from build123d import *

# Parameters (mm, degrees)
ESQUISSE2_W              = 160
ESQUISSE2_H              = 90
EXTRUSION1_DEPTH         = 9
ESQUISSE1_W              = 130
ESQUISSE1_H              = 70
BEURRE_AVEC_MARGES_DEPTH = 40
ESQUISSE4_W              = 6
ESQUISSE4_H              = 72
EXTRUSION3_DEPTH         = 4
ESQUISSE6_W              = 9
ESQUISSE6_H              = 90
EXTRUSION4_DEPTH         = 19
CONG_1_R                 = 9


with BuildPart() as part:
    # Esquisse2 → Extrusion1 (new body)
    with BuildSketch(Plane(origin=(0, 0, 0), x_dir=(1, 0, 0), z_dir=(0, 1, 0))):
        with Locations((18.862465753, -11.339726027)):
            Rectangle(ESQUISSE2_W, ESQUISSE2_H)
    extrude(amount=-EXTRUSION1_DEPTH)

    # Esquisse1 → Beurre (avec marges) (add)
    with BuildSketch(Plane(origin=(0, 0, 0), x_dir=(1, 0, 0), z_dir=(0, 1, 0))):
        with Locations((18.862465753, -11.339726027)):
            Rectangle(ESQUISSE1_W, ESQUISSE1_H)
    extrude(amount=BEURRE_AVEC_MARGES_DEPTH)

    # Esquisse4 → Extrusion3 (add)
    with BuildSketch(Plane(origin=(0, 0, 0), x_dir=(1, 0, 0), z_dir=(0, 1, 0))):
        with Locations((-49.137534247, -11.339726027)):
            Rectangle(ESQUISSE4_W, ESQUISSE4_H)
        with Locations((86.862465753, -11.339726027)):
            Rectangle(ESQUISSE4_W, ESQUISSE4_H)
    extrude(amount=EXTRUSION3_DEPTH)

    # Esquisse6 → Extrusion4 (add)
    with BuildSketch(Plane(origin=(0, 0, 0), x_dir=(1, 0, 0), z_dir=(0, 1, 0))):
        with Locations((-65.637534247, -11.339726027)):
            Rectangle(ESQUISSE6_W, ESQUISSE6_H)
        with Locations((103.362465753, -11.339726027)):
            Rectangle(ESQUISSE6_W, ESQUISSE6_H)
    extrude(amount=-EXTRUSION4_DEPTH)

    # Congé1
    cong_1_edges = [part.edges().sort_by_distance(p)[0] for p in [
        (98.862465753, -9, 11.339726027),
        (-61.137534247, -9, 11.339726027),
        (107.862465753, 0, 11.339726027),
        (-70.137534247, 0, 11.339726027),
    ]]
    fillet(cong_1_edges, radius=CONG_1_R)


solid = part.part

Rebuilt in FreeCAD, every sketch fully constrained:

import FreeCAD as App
import Part
import Sketcher
Q = App.Units.Quantity


def edges_at(feature, points):
    """Names of the edges that pass closest to the given points."""
    edges = feature.Shape.Edges
    near = lambda p: min(range(len(edges)), key=lambda i: edges[i].distToShape(Part.Vertex(*p))[0])
    return sorted({f"Edge{near(p) + 1}" for p in points})

doc = App.newDocument("Part")
params = doc.addObject("Spreadsheet::Sheet", "Params")
for row, (alias, value) in enumerate([
    ("sketch1_width", "160 mm"),
    ("sketch1_height", "90 mm"),
    ("pad1_length", "9 mm"),
    ("sketch2_width", "130 mm"),
    ("sketch2_height", "70 mm"),
    ("pad2_length", "40 mm"),
    ("sketch3_width", "6 mm"),
    ("sketch3_height", "72 mm"),
    ("pad3_length", "4 mm"),
    ("sketch4_width", "9 mm"),
    ("sketch4_height", "90 mm"),
    ("pad4_length", "19 mm"),
    ("fillet_radius", "9 mm"),
], start=1):
    params.set(f"A{row}", alias)
    params.set(f"B{row}", "=" + value)
    params.setAlias(f"B{row}", alias)

body = doc.addObject("PartDesign::Body", "Body")

sketch1 = body.newObject("Sketcher::SketchObject", "Sketch")
sketch1.AttachmentSupport = (doc.getObject("XZ_Plane"), [""])
sketch1.MapMode = "FlatFace"
sketch1.addGeometry(Part.LineSegment(App.Vector(-61, -34, 0), App.Vector(-61, 56, 0)), False)
sketch1.addGeometry(Part.LineSegment(App.Vector(-61, 56, 0), App.Vector(99, 56, 0)), False)
sketch1.addGeometry(Part.LineSegment(App.Vector(99, 56, 0), App.Vector(99, -34, 0)), False)
sketch1.addGeometry(Part.LineSegment(App.Vector(99, -34, 0), App.Vector(-61, -34, 0)), False)
sketch1.addConstraint(Sketcher.Constraint("Coincident", 0, 2, 1, 1))
sketch1.addConstraint(Sketcher.Constraint("Coincident", 1, 2, 2, 1))
sketch1.addConstraint(Sketcher.Constraint("Coincident", 2, 2, 3, 1))
sketch1.addConstraint(Sketcher.Constraint("Coincident", 3, 2, 0, 1))
sketch1.addConstraint(Sketcher.Constraint("Vertical", 0))
sketch1.addConstraint(Sketcher.Constraint("Horizontal", 1))
sketch1.addConstraint(Sketcher.Constraint("Vertical", 2))
sketch1.addConstraint(Sketcher.Constraint("Horizontal", 3))
sketch1.addConstraint(Sketcher.Constraint("DistanceX", 1, 1, 1, 2, Q("160 mm")))
sketch1.addConstraint(Sketcher.Constraint("DistanceY", 0, 1, 0, 2, Q("90 mm")))
sketch1.addConstraint(Sketcher.Constraint("DistanceX", 0, 2, -1, 1, Q("61.137534 mm")))
sketch1.addConstraint(Sketcher.Constraint("DistanceY", -1, 1, 0, 2, Q("56.339726 mm")))
sketch1.setExpression("Constraints[8]", "Params.sketch1_width")
sketch1.setExpression("Constraints[9]", "Params.sketch1_height")
pad1 = body.newObject("PartDesign::Pad", "Pad")
pad1.Profile = sketch1
pad1.setExpression("Length", "Params.pad1_length")

sketch2 = body.newObject("Sketcher::SketchObject", "Sketch001")
sketch2.AttachmentSupport = (doc.getObject("XZ_Plane"), [""])
sketch2.MapMode = "FlatFace"
sketch2.addGeometry(Part.LineSegment(App.Vector(-46, -24, 0), App.Vector(-46, 46, 0)), False)
sketch2.addGeometry(Part.LineSegment(App.Vector(-46, 46, 0), App.Vector(84, 46, 0)), False)
sketch2.addGeometry(Part.LineSegment(App.Vector(84, 46, 0), App.Vector(84, -24, 0)), False)
sketch2.addGeometry(Part.LineSegment(App.Vector(84, -24, 0), App.Vector(-46, -24, 0)), False)
sketch2.addConstraint(Sketcher.Constraint("Coincident", 0, 2, 1, 1))
sketch2.addConstraint(Sketcher.Constraint("Coincident", 1, 2, 2, 1))
sketch2.addConstraint(Sketcher.Constraint("Coincident", 2, 2, 3, 1))
sketch2.addConstraint(Sketcher.Constraint("Coincident", 3, 2, 0, 1))
sketch2.addConstraint(Sketcher.Constraint("Vertical", 0))
sketch2.addConstraint(Sketcher.Constraint("Horizontal", 1))
sketch2.addConstraint(Sketcher.Constraint("Vertical", 2))
sketch2.addConstraint(Sketcher.Constraint("Horizontal", 3))
sketch2.addConstraint(Sketcher.Constraint("DistanceX", 1, 1, 1, 2, Q("130 mm")))
sketch2.addConstraint(Sketcher.Constraint("DistanceY", 0, 1, 0, 2, Q("70 mm")))
sketch2.addConstraint(Sketcher.Constraint("DistanceX", 0, 2, -1, 1, Q("46.137534 mm")))
sketch2.addConstraint(Sketcher.Constraint("DistanceY", -1, 1, 0, 2, Q("46.339726 mm")))
sketch2.setExpression("Constraints[8]", "Params.sketch2_width")
sketch2.setExpression("Constraints[9]", "Params.sketch2_height")
pad2 = body.newObject("PartDesign::Pad", "Pad001")
pad2.Profile = sketch2
pad2.setExpression("Length", "Params.pad2_length")
pad2.Reversed = True

sketch3 = body.newObject("Sketcher::SketchObject", "Sketch002")
sketch3.AttachmentSupport = (doc.getObject("XZ_Plane"), [""])
sketch3.MapMode = "FlatFace"
sketch3.addGeometry(Part.LineSegment(App.Vector(-52, -25, 0), App.Vector(-52, 47, 0)), False)
sketch3.addGeometry(Part.LineSegment(App.Vector(-52, 47, 0), App.Vector(-46, 47, 0)), False)
sketch3.addGeometry(Part.LineSegment(App.Vector(-46, 47, 0), App.Vector(-46, -25, 0)), False)
sketch3.addGeometry(Part.LineSegment(App.Vector(-46, -25, 0), App.Vector(-52, -25, 0)), False)
sketch3.addGeometry(Part.LineSegment(App.Vector(84, -25, 0), App.Vector(84, 47, 0)), False)
sketch3.addGeometry(Part.LineSegment(App.Vector(84, 47, 0), App.Vector(90, 47, 0)), False)
sketch3.addGeometry(Part.LineSegment(App.Vector(90, 47, 0), App.Vector(90, -25, 0)), False)
sketch3.addGeometry(Part.LineSegment(App.Vector(90, -25, 0), App.Vector(84, -25, 0)), False)
sketch3.addConstraint(Sketcher.Constraint("Coincident", 0, 2, 1, 1))
sketch3.addConstraint(Sketcher.Constraint("Coincident", 1, 2, 2, 1))
sketch3.addConstraint(Sketcher.Constraint("Coincident", 2, 2, 3, 1))
sketch3.addConstraint(Sketcher.Constraint("Coincident", 3, 2, 0, 1))
sketch3.addConstraint(Sketcher.Constraint("Coincident", 4, 2, 5, 1))
sketch3.addConstraint(Sketcher.Constraint("Coincident", 5, 2, 6, 1))
sketch3.addConstraint(Sketcher.Constraint("Coincident", 6, 2, 7, 1))
sketch3.addConstraint(Sketcher.Constraint("Coincident", 7, 2, 4, 1))
sketch3.addConstraint(Sketcher.Constraint("Vertical", 0))
sketch3.addConstraint(Sketcher.Constraint("Horizontal", 1))
sketch3.addConstraint(Sketcher.Constraint("Vertical", 2))
sketch3.addConstraint(Sketcher.Constraint("Horizontal", 3))
sketch3.addConstraint(Sketcher.Constraint("Vertical", 4))
sketch3.addConstraint(Sketcher.Constraint("Horizontal", 5))
sketch3.addConstraint(Sketcher.Constraint("Vertical", 6))
sketch3.addConstraint(Sketcher.Constraint("Horizontal", 7))
sketch3.addConstraint(Sketcher.Constraint("Horizontal", 1, 2, 4, 2))
sketch3.addConstraint(Sketcher.Constraint("Horizontal", 3, 2, 6, 2))
sketch3.addConstraint(Sketcher.Constraint("Equal", 3, 5))
sketch3.addConstraint(Sketcher.Constraint("DistanceX", 1, 1, 1, 2, Q("6 mm")))
sketch3.addConstraint(Sketcher.Constraint("DistanceY", 0, 1, 0, 2, Q("72 mm")))
sketch3.addConstraint(Sketcher.Constraint("DistanceX", 1, 2, 4, 2, Q("130 mm")))
sketch3.addConstraint(Sketcher.Constraint("DistanceX", 0, 2, -1, 1, Q("52.137534 mm")))
sketch3.addConstraint(Sketcher.Constraint("DistanceY", -1, 1, 0, 2, Q("47.339726 mm")))
sketch3.setExpression("Constraints[19]", "Params.sketch3_width")
sketch3.setExpression("Constraints[20]", "Params.sketch3_height")
pad3 = body.newObject("PartDesign::Pad", "Pad002")
pad3.Profile = sketch3
pad3.setExpression("Length", "Params.pad3_length")
pad3.Reversed = True

sketch4 = body.newObject("Sketcher::SketchObject", "Sketch003")
sketch4.AttachmentSupport = (doc.getObject("XZ_Plane"), [""])
sketch4.MapMode = "FlatFace"
sketch4.addGeometry(Part.LineSegment(App.Vector(-70, -34, 0), App.Vector(-70, 56, 0)), False)
sketch4.addGeometry(Part.LineSegment(App.Vector(-70, 56, 0), App.Vector(-61, 56, 0)), False)
sketch4.addGeometry(Part.LineSegment(App.Vector(-61, 56, 0), App.Vector(-61, -34, 0)), False)
sketch4.addGeometry(Part.LineSegment(App.Vector(-61, -34, 0), App.Vector(-70, -34, 0)), False)
sketch4.addGeometry(Part.LineSegment(App.Vector(99, -34, 0), App.Vector(99, 56, 0)), False)
sketch4.addGeometry(Part.LineSegment(App.Vector(99, 56, 0), App.Vector(108, 56, 0)), False)
sketch4.addGeometry(Part.LineSegment(App.Vector(108, 56, 0), App.Vector(108, -34, 0)), False)
sketch4.addGeometry(Part.LineSegment(App.Vector(108, -34, 0), App.Vector(99, -34, 0)), False)
sketch4.addConstraint(Sketcher.Constraint("Coincident", 0, 2, 1, 1))
sketch4.addConstraint(Sketcher.Constraint("Coincident", 1, 2, 2, 1))
sketch4.addConstraint(Sketcher.Constraint("Coincident", 2, 2, 3, 1))
sketch4.addConstraint(Sketcher.Constraint("Coincident", 3, 2, 0, 1))
sketch4.addConstraint(Sketcher.Constraint("Coincident", 4, 2, 5, 1))
sketch4.addConstraint(Sketcher.Constraint("Coincident", 5, 2, 6, 1))
sketch4.addConstraint(Sketcher.Constraint("Coincident", 6, 2, 7, 1))
sketch4.addConstraint(Sketcher.Constraint("Coincident", 7, 2, 4, 1))
sketch4.addConstraint(Sketcher.Constraint("Vertical", 0))
sketch4.addConstraint(Sketcher.Constraint("Horizontal", 1))
sketch4.addConstraint(Sketcher.Constraint("Vertical", 2))
sketch4.addConstraint(Sketcher.Constraint("Horizontal", 3))
sketch4.addConstraint(Sketcher.Constraint("Vertical", 4))
sketch4.addConstraint(Sketcher.Constraint("Horizontal", 5))
sketch4.addConstraint(Sketcher.Constraint("Vertical", 6))
sketch4.addConstraint(Sketcher.Constraint("Horizontal", 7))
sketch4.addConstraint(Sketcher.Constraint("Horizontal", 1, 2, 4, 2))
sketch4.addConstraint(Sketcher.Constraint("Horizontal", 3, 2, 6, 2))
sketch4.addConstraint(Sketcher.Constraint("Equal", 3, 5))
sketch4.addConstraint(Sketcher.Constraint("DistanceX", 1, 1, 1, 2, Q("9 mm")))
sketch4.addConstraint(Sketcher.Constraint("DistanceY", 0, 1, 0, 2, Q("90 mm")))
sketch4.addConstraint(Sketcher.Constraint("DistanceX", 1, 2, 4, 2, Q("160 mm")))
sketch4.addConstraint(Sketcher.Constraint("DistanceX", 0, 2, -1, 1, Q("70.137534 mm")))
sketch4.addConstraint(Sketcher.Constraint("DistanceY", -1, 1, 0, 2, Q("56.339726 mm")))
sketch4.setExpression("Constraints[19]", "Params.sketch4_width")
sketch4.setExpression("Constraints[20]", "Params.sketch4_height")
pad4 = body.newObject("PartDesign::Pad", "Pad003")
pad4.Profile = sketch4
pad4.setExpression("Length", "Params.pad4_length")
doc.recompute()

fillet = body.newObject("PartDesign::Fillet", "Fillet")
fillet.Base = (pad4, edges_at(pad4, [
    (98.862, -9, 11.34),
    (-61.138, -9, 11.34),
    (107.862, 0, 11.34),
    (-70.138, 0, 11.34),
]))
fillet.setExpression("Radius", "Params.fillet_radius")

doc.recompute()
